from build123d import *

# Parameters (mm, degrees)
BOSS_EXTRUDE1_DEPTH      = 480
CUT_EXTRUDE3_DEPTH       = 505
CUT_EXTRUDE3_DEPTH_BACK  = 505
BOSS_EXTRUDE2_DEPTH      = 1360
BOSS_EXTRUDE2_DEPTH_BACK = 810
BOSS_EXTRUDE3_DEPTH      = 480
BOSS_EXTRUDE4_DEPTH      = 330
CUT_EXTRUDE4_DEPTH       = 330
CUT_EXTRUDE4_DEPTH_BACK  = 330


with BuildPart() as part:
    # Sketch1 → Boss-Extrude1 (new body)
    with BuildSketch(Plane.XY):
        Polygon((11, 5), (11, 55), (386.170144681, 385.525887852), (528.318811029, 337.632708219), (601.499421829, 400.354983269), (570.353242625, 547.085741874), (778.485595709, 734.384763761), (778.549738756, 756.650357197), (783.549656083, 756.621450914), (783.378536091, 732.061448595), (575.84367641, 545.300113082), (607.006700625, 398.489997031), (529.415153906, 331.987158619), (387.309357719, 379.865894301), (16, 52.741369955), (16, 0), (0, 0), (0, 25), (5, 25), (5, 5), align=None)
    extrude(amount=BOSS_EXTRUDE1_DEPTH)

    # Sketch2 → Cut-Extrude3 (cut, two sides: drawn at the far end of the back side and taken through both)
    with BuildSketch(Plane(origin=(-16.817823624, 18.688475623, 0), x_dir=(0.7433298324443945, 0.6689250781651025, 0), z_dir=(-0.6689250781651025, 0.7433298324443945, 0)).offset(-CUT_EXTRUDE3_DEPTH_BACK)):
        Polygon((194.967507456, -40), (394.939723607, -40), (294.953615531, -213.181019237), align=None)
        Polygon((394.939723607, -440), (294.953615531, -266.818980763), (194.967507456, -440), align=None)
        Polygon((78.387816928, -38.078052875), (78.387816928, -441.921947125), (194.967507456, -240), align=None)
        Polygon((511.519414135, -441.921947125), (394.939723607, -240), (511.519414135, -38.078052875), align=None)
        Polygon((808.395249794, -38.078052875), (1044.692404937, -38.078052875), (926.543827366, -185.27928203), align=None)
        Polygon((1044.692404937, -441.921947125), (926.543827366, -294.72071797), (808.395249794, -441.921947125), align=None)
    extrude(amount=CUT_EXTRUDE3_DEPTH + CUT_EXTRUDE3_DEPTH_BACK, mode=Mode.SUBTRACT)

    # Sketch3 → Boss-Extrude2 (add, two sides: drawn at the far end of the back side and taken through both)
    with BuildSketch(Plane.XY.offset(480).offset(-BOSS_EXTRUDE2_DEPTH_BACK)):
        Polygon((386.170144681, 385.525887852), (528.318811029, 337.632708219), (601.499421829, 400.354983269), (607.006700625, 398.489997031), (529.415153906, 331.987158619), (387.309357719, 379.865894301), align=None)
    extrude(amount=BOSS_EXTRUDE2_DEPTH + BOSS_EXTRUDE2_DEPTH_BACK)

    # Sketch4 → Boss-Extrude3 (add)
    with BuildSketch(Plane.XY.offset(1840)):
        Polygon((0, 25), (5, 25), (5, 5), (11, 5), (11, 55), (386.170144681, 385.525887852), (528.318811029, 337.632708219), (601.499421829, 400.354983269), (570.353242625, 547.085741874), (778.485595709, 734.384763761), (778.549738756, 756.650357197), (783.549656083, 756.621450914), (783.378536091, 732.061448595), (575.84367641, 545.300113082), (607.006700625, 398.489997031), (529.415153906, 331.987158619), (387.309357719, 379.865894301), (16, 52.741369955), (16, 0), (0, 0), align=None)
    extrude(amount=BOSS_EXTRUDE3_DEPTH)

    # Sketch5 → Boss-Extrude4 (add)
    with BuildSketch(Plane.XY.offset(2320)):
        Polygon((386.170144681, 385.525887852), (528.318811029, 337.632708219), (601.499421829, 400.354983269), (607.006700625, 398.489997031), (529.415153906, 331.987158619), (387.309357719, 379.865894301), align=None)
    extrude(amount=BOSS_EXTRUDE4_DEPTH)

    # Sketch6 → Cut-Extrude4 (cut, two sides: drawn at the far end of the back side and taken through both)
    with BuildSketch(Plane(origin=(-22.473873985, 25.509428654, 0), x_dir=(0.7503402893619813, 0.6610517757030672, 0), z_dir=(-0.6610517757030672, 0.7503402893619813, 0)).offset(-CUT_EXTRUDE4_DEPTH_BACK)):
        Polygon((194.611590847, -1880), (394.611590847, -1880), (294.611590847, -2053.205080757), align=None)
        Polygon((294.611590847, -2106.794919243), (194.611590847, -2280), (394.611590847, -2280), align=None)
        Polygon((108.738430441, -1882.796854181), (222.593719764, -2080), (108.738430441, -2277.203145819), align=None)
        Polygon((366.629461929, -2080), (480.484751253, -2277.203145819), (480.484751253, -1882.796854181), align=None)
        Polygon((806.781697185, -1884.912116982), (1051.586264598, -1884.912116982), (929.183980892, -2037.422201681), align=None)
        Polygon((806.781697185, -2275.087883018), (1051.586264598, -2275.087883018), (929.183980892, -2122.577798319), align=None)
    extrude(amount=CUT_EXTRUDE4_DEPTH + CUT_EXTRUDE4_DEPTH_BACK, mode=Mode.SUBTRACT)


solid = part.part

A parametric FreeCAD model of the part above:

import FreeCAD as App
import Part
import Sketcher
from FreeCAD import Vector
Q = App.Units.Quantity


def add_polygon(sketch, points):
    """Adds a closed chain of lines whose ends are joined by coincident constraints."""
    first, n = sketch.GeometryCount, len(points)
    for a, b in zip(points, points[1:] + points[:1]):
        sketch.addGeometry(Part.LineSegment(App.Vector(*a, 0), App.Vector(*b, 0)), False)
    for i in range(n):
        sketch.addConstraint(Sketcher.Constraint("Coincident", first + i, 2, first + (i + 1) % n, 1))

doc = App.newDocument("Part")
body = doc.addObject("PartDesign::Body", "Body")

# Sketch on XY plane
sketch1 = body.newObject("Sketcher::SketchObject", "Sketch")
sketch1.AttachmentSupport = (doc.getObject("XY_Plane"), [""])
sketch1.MapMode = "FlatFace"
add_polygon(sketch1, [(11, 55), (11, 5), (5, 5), (5, 25), (0, 25), (0, 0), (16, 0), (16, 52.74137), (387.309358, 379.865894), (529.415154, 331.987159), (607.006701, 398.489997), (575.843676, 545.300113), (783.378536, 732.061449), (783.549656, 756.621451), (778.549739, 756.650357), (778.485596, 734.384764), (570.353243, 547.085742), (601.499422, 400.354983), (528.318811, 337.632708), (386.170145, 385.525888)])  # lines 0-19
sketch1.addConstraint(Sketcher.Constraint("Vertical", 0))
sketch1.addConstraint(Sketcher.Constraint("Horizontal", 1))
sketch1.addConstraint(Sketcher.Constraint("Vertical", 2))
sketch1.addConstraint(Sketcher.Constraint("Horizontal", 3))
sketch1.addConstraint(Sketcher.Constraint("Vertical", 4))
sketch1.addConstraint(Sketcher.Constraint("Horizontal", 5))
sketch1.addConstraint(Sketcher.Constraint("Vertical", 6))
sketch1.addConstraint(Sketcher.Constraint("Coincident", 4, 2, -1, 1))
sketch1.addConstraint(Sketcher.Constraint("Parallel", 11, 15))
sketch1.addConstraint(Sketcher.Constraint("Parallel", 10, 16))
sketch1.addConstraint(Sketcher.Constraint("Parallel", 9, 17))
sketch1.addConstraint(Sketcher.Constraint("Parallel", 8, 18))
sketch1.addConstraint(Sketcher.Constraint("Parallel", 7, 19))
sketch1.addConstraint(Sketcher.Constraint("Equal", 16, 18))
sketch1.addConstraint(Sketcher.Constraint("DistanceX", 1, 2, 1, 1, Q("6 mm")))
sketch1.addConstraint(Sketcher.Constraint("DistanceX", 3, 2, 3, 1, Q("5 mm")))
sketch1.addConstraint(Sketcher.Constraint("DistanceX", 5, 1, 5, 2, Q("16 mm")))
sketch1.addConstraint(Sketcher.Constraint("DistanceY", 0, 2, 0, 1, Q("50 mm")))
sketch1.addConstraint(Sketcher.Constraint("DistanceY", 2, 1, 2, 2, Q("20 mm")))
sketch1.addConstraint(Sketcher.Constraint("DistanceY", 4, 2, 4, 1, Q("25 mm")))
sketch1.addConstraint(Sketcher.Constraint("Distance", 13, Q("5.000001 mm")))
sketch1.addConstraint(Sketcher.Constraint("Distance", 15, Q("280 mm")))
sketch1.addConstraint(Sketcher.Constraint("Distance", 16, Q("150 mm")))
sketch1.addConstraint(Sketcher.Constraint("Distance", 19, Q("500 mm")))
sketch1.addConstraint(Sketcher.Constraint("Distance", 12, Q("24.560598 mm")))
sketch1.addConstraint(Sketcher.Constraint("DistanceY", 6, 1, 6, 2, Q("52.74137 mm")))
sketch1.addConstraint(Sketcher.Constraint("DistanceX", -1, 1, 9, 2, Q("607.006701 mm")))
sketch1.addConstraint(Sketcher.Constraint("DistanceX", 7, 2, 12, 2, Q("396.240298 mm")))
sketch1.addConstraint(Sketcher.Constraint("DistanceY", 8, 2, 13, 2, Q("424.663199 mm")))
sketch1.addConstraint(Sketcher.Constraint("Distance", 7, Q("494.854619 mm")))
sketch1.addConstraint(Sketcher.Constraint("Distance", 8, Q("149.954762 mm")))
sketch1.addConstraint(Sketcher.Constraint("DistanceY", -1, 1, 8, 2, Q("331.987159 mm")))
sketch1.addConstraint(Sketcher.Constraint("DistanceY", -1, 1, 11, 2, Q("732.061449 mm")))
sketch1.addConstraint(Sketcher.Constraint("DistanceY", -1, 1, 12, 2, Q("756.621451 mm")))
sketch1.addConstraint(Sketcher.Constraint("DistanceX", -1, 1, 13, 2, Q("778.549739 mm")))
sketch1.addConstraint(Sketcher.Constraint("DistanceY", -1, 1, 15, 2, Q("547.085742 mm")))
sketch1.addConstraint(Sketcher.Constraint("DistanceX", -1, 1, 16, 2, Q("601.499422 mm")))
sketch1.addConstraint(Sketcher.Constraint("DistanceY", 8, 2, 9, 2, Q("66.502838 mm")))
sketch1.addConstraint(Sketcher.Constraint("DistanceX", 7, 2, 10, 2, Q("188.534319 mm")))
pad1 = body.newObject("PartDesign::Pad", "Pad")
pad1.Profile = sketch1
pad1.Length = 480

# Sketch on an angled plane
sketch2 = body.newObject("Sketcher::SketchObject", "Sketch001")
sketch2.Placement = App.Placement(Vector(-16.817824, 18.688475, 0), App.Rotation(Vector(0.743329832, 0.668925078, 0), Vector(0, 0, -0.999999999), Vector(-0.668925078, 0.743329832, 0), "ZXY"))
add_polygon(sketch2, [(394.939723, -40), (194.967507, -40), (294.953615, -213.181019)])  # lines 0-2
add_polygon(sketch2, [(394.939723, -439.999999), (294.953615, -266.81898), (194.967507, -439.999999)])  # lines 3-5
add_polygon(sketch2, [(78.387817, -38.078053), (78.387817, -441.921946), (194.967507, -240)])  # lines 6-8
add_polygon(sketch2, [(394.939723, -240), (511.519414, -441.921946), (511.519414, -38.078053)])  # lines 9-11
add_polygon(sketch2, [(1044.692404, -38.078053), (808.395249, -38.078053), (926.543827, -185.279282)])  # lines 12-14
add_polygon(sketch2, [(1044.692404, -441.921946), (926.543827, -294.720717), (808.395249, -441.921946)])  # lines 15-17
sketch2.addConstraint(Sketcher.Constraint("Horizontal", 0))
sketch2.addConstraint(Sketcher.Constraint("Horizontal", 5))
sketch2.addConstraint(Sketcher.Constraint("Vertical", 6))
sketch2.addConstraint(Sketcher.Constraint("Vertical", 10))
sketch2.addConstraint(Sketcher.Constraint("Horizontal", 12))
sketch2.addConstraint(Sketcher.Constraint("Horizontal", 17))
sketch2.addConstraint(Sketcher.Constraint("Parallel", 1, 3))
sketch2.addConstraint(Sketcher.Constraint("Parallel", 2, 4))
sketch2.addConstraint(Sketcher.Constraint("Parallel", 4, 7))
sketch2.addConstraint(Sketcher.Constraint("Parallel", 3, 8))
sketch2.addConstraint(Sketcher.Constraint("Parallel", 8, 9))
sketch2.addConstraint(Sketcher.Constraint("Parallel", 7, 11))
sketch2.addConstraint(Sketcher.Constraint("Parallel", 13, 15))
sketch2.addConstraint(Sketcher.Constraint("Parallel", 14, 16))
sketch2.addConstraint(Sketcher.Constraint("Horizontal", 6, 2, 9, 2))
sketch2.addConstraint(Sketcher.Constraint("Horizontal", 8, 2, 10, 2))
sketch2.addConstraint(Sketcher.Constraint("Horizontal", 7, 2, 11, 2))
sketch2.addConstraint(Sketcher.Constraint("Horizontal", 10, 2, 12, 2))
sketch2.addConstraint(Sketcher.Constraint("Horizontal", 9, 2, 16, 2))
sketch2.addConstraint(Sketcher.Constraint("Vertical", 1, 2, 3, 2))
sketch2.addConstraint(Sketcher.Constraint("Vertical", 0, 2, 4, 2))
sketch2.addConstraint(Sketcher.Constraint("Vertical", 4, 2, 7, 2))
sketch2.addConstraint(Sketcher.Constraint("Vertical", 5, 2, 11, 2))
sketch2.addConstraint(Sketcher.Constraint("Vertical", 13, 2, 15, 2))
sketch2.addConstraint(Sketcher.Constraint("Vertical", 12, 2, 16, 2))
sketch2.addConstraint(Sketcher.Constraint("Vertical", 14, 2, 17, 2))
sketch2.addConstraint(Sketcher.Constraint("Angle", 1, Q("-60 deg")))
sketch2.addConstraint(Sketcher.Constraint("DistanceY", 0, 2, -1, 1, Q("40 mm")))
sketch2.addConstraint(Sketcher.Constraint("DistanceY", 4, 2, -1, 1, Q("439.999999 mm")))
sketch2.addConstraint(Sketcher.Constraint("DistanceY", 7, 2, -1, 1, Q("240 mm")))
sketch2.addConstraint(Sketcher.Constraint("DistanceX", 6, 2, 3, 2, Q("216.565798 mm")))
sketch2.addConstraint(Sketcher.Constraint("Distance", 7, Q("233.159381 mm")))
sketch2.addConstraint(Sketcher.Constraint("DistanceX", 12, 2, 12, 1, Q("236.297155 mm")))
sketch2.addConstraint(Sketcher.Constraint("DistanceX", -1, 1, 12, 2, Q("808.395249 mm")))
sketch2.addConstraint(Sketcher.Constraint("DistanceY", 13, 2, -1, 1, Q("185.279282 mm")))
sketch2.addConstraint(Sketcher.Constraint("DistanceX", 10, 2, 14, 2, Q("533.17299 mm")))
pocket1 = body.newObject("PartDesign::Pocket", "Pocket")
pocket1.Profile = sketch2
pocket1.Type = "ThroughAll"
pocket1.Midplane = True

# Sketch on XY plane
sketch3 = body.newObject("Sketcher::SketchObject", "Sketch002")
sketch3.AttachmentSupport = (doc.getObject("XY_Plane"), [""])
sketch3.MapMode = "FlatFace"
sketch3.AttachmentOffset = App.Placement(Vector(0, 0, 480), App.Rotation())
add_polygon(sketch3, [(528.318811, 337.632708), (386.170145, 385.525888), (387.309358, 379.865894), (529.415154, 331.987159), (607.006701, 398.489997), (601.499422, 400.354983)])  # lines 0-5
sketch3.addConstraint(Sketcher.Constraint("Parallel", 0, 2))
sketch3.addConstraint(Sketcher.Constraint("Parallel", 3, 5))
sketch3.addConstraint(Sketcher.Constraint("Distance", 0, Q("150 mm")))
sketch3.addConstraint(Sketcher.Constraint("DistanceX", -1, 1, 3, 2, Q("607.006701 mm")))
sketch3.addConstraint(Sketcher.Constraint("Distance", 2, Q("149.954762 mm")))
sketch3.addConstraint(Sketcher.Constraint("Distance", 4, Q("5.81449 mm")))
sketch3.addConstraint(Sketcher.Constraint("DistanceY", -1, 1, 2, 2, Q("331.987159 mm")))
sketch3.addConstraint(Sketcher.Constraint("DistanceX", -1, 1, 4, 2, Q("601.499422 mm")))
sketch3.addConstraint(Sketcher.Constraint("DistanceX", -1, 1, 5, 2, Q("528.318811 mm")))
sketch3.addConstraint(Sketcher.Constraint("DistanceY", -1, 1, 5, 2, Q("337.632708 mm")))
sketch3.addConstraint(Sketcher.Constraint("DistanceX", 0, 2, 2, 2, Q("143.245009 mm")))
sketch3.addConstraint(Sketcher.Constraint("DistanceY", 2, 2, 0, 2, Q("53.538729 mm")))
pad2 = body.newObject("PartDesign::Pad", "Pad001")
pad2.Profile = sketch3
pad2.Type = "TwoLengths"
pad2.Length = 1360
pad2.Length2 = 810

# Sketch on XY plane
sketch4 = body.newObject("Sketcher::SketchObject", "Sketch003")
sketch4.AttachmentSupport = (doc.getObject("XY_Plane"), [""])
sketch4.MapMode = "FlatFace"
sketch4.AttachmentOffset = App.Placement(Vector(0, 0, 1840), App.Rotation())
add_polygon(sketch4, [(5, 25), (0, 25), (0, 0), (16, 0), (16, 52.74137), (387.309358, 379.865894), (529.415154, 331.987159), (607.006701, 398.489997), (575.843676, 545.300113), (783.378536, 732.061449), (783.549656, 756.621451), (778.549739, 756.650357), (778.485596, 734.384764), (570.353243, 547.085742), (601.499422, 400.354983), (528.318811, 337.632708), (386.170145, 385.525888), (11, 55), (11, 5), (5, 5)])  # lines 0-19
sketch4.addConstraint(Sketcher.Constraint("Horizontal", 0))
sketch4.addConstraint(Sketcher.Constraint("Vertical", 1))
sketch4.addConstraint(Sketcher.Constraint("Horizontal", 2))
sketch4.addConstraint(Sketcher.Constraint("Vertical", 3))
sketch4.addConstraint(Sketcher.Constraint("Vertical", 17))
sketch4.addConstraint(Sketcher.Constraint("Horizontal", 18))
sketch4.addConstraint(Sketcher.Constraint("Vertical", 19))
sketch4.addConstraint(Sketcher.Constraint("Coincident", 1, 2, -1, 1))
sketch4.addConstraint(Sketcher.Constraint("Parallel", 8, 12))
sketch4.addConstraint(Sketcher.Constraint("Parallel", 7, 13))
sketch4.addConstraint(Sketcher.Constraint("Parallel", 6, 14))
sketch4.addConstraint(Sketcher.Constraint("Parallel", 5, 15))
sketch4.addConstraint(Sketcher.Constraint("Parallel", 4, 16))
sketch4.addConstraint(Sketcher.Constraint("Equal", 13, 15))
sketch4.addConstraint(Sketcher.Constraint("DistanceX", 0, 2, 0, 1, Q("5 mm")))
sketch4.addConstraint(Sketcher.Constraint("DistanceX", 2, 1, 2, 2, Q("16 mm")))
sketch4.addConstraint(Sketcher.Constraint("DistanceX", 18, 2, 18, 1, Q("6 mm")))
sketch4.addConstraint(Sketcher.Constraint("DistanceY", 1, 2, 1, 1, Q("25 mm")))
sketch4.addConstraint(Sketcher.Constraint("DistanceY", 17, 2, 17, 1, Q("50 mm")))
sketch4.addConstraint(Sketcher.Constraint("DistanceY", 19, 1, 19, 2, Q("20 mm")))
sketch4.addConstraint(Sketcher.Constraint("Distance", 10, Q("5.000001 mm")))
sketch4.addConstraint(Sketcher.Constraint("Distance", 12, Q("280 mm")))
sketch4.addConstraint(Sketcher.Constraint("Distance", 13, Q("150 mm")))
sketch4.addConstraint(Sketcher.Constraint("Distance", 16, Q("500 mm")))
sketch4.addConstraint(Sketcher.Constraint("Distance", 9, Q("24.560598 mm")))
sketch4.addConstraint(Sketcher.Constraint("DistanceY", 3, 1, 3, 2, Q("52.74137 mm")))
sketch4.addConstraint(Sketcher.Constraint("DistanceX", -1, 1, 6, 2, Q("607.006701 mm")))
sketch4.addConstraint(Sketcher.Constraint("DistanceX", 4, 2, 9, 2, Q("396.240298 mm")))
sketch4.addConstraint(Sketcher.Constraint("DistanceY", 5, 2, 10, 2, Q("424.663199 mm")))
sketch4.addConstraint(Sketcher.Constraint("Distance", 4, Q("494.854619 mm")))
sketch4.addConstraint(Sketcher.Constraint("Distance", 5, Q("149.954762 mm")))
sketch4.addConstraint(Sketcher.Constraint("DistanceY", -1, 1, 5, 2, Q("331.987159 mm")))
sketch4.addConstraint(Sketcher.Constraint("DistanceY", -1, 1, 8, 2, Q("732.061449 mm")))
sketch4.addConstraint(Sketcher.Constraint("DistanceY", -1, 1, 9, 2, Q("756.621451 mm")))
sketch4.addConstraint(Sketcher.Constraint("DistanceX", -1, 1, 10, 2, Q("778.549739 mm")))
sketch4.addConstraint(Sketcher.Constraint("DistanceY", -1, 1, 12, 2, Q("547.085742 mm")))
sketch4.addConstraint(Sketcher.Constraint("DistanceX", -1, 1, 13, 2, Q("601.499422 mm")))
sketch4.addConstraint(Sketcher.Constraint("DistanceY", 5, 2, 6, 2, Q("66.502838 mm")))
sketch4.addConstraint(Sketcher.Constraint("DistanceX", 4, 2, 7, 2, Q("188.534319 mm")))
pad3 = body.newObject("PartDesign::Pad", "Pad002")
pad3.Profile = sketch4
pad3.Length = 480

# Sketch on XY plane
sketch5 = body.newObject("Sketcher::SketchObject", "Sketch004")
sketch5.AttachmentSupport = (doc.getObject("XY_Plane"), [""])
sketch5.MapMode = "FlatFace"
sketch5.AttachmentOffset = App.Placement(Vector(0, 0, 2320), App.Rotation())
add_polygon(sketch5, [(528.318811, 337.632708), (386.170145, 385.525888), (387.309358, 379.865894), (529.415154, 331.987159), (607.006701, 398.489997), (601.499422, 400.354983)])  # lines 0-5
sketch5.addConstraint(Sketcher.Constraint("Parallel", 0, 2))
sketch5.addConstraint(Sketcher.Constraint("Parallel", 3, 5))
sketch5.addConstraint(Sketcher.Constraint("Distance", 0, Q("150 mm")))
sketch5.addConstraint(Sketcher.Constraint("DistanceX", -1, 1, 3, 2, Q("607.006701 mm")))
sketch5.addConstraint(Sketcher.Constraint("Distance", 2, Q("149.954762 mm")))
sketch5.addConstraint(Sketcher.Constraint("Distance", 4, Q("5.81449 mm")))
sketch5.addConstraint(Sketcher.Constraint("DistanceY", -1, 1, 2, 2, Q("331.987159 mm")))
sketch5.addConstraint(Sketcher.Constraint("DistanceX", -1, 1, 4, 2, Q("601.499422 mm")))
sketch5.addConstraint(Sketcher.Constraint("DistanceX", -1, 1, 5, 2, Q("528.318811 mm")))
sketch5.addConstraint(Sketcher.Constraint("DistanceY", -1, 1, 5, 2, Q("337.632708 mm")))
sketch5.addConstraint(Sketcher.Constraint("DistanceX", 0, 2, 2, 2, Q("143.245009 mm")))
sketch5.addConstraint(Sketcher.Constraint("DistanceY", 2, 2, 0, 2, Q("53.538729 mm")))
pad4 = body.newObject("PartDesign::Pad", "Pad003")
pad4.Profile = sketch5
pad4.Length = 330

# Sketch on an angled plane
sketch6 = body.newObject("Sketcher::SketchObject", "Sketch005")
sketch6.Placement = App.Placement(Vector(-22.473874, 25.509429, 0), App.Rotation(Vector(0.750340289, 0.661051776, 0), Vector(0, 0, -1), Vector(-0.661051776, 0.750340289, 0), "ZXY"))
add_polygon(sketch6, [(394.611591, -1879.999999), (194.611591, -1879.999999), (294.611591, -2053.20508)])  # lines 0-2
add_polygon(sketch6, [(294.611591, -2106.794919), (194.611591, -2279.999999), (394.611591, -2279.999999)])  # lines 3-5
add_polygon(sketch6, [(222.59372, -2079.999999), (108.73843, -1882.796854), (108.73843, -2277.203145)])  # lines 6-8
add_polygon(sketch6, [(366.629462, -2079.999999), (480.484751, -2277.203145), (480.484751, -1882.796854)])  # lines 9-11
add_polygon(sketch6, [(1051.586264, -1884.912116), (806.781697, -1884.912116), (929.183981, -2037.422201)])  # lines 12-14
add_polygon(sketch6, [(806.781697, -2275.087882), (1051.586264, -2275.087882), (929.183981, -2122.577798)])  # lines 15-17
sketch6.addConstraint(Sketcher.Constraint("Horizontal", 0))
sketch6.addConstraint(Sketcher.Constraint("Horizontal", 4))
sketch6.addConstraint(Sketcher.Constraint("Vertical", 7))
sketch6.addConstraint(Sketcher.Constraint("Vertical", 10))
sketch6.addConstraint(Sketcher.Constraint("Horizontal", 12))
sketch6.addConstraint(Sketcher.Constraint("Horizontal", 15))
sketch6.addConstraint(Sketcher.Constraint("Parallel", 2, 3))
sketch6.addConstraint(Sketcher.Constraint("Parallel", 1, 5))
sketch6.addConstraint(Sketcher.Constraint("Parallel", 5, 6))
sketch6.addConstraint(Sketcher.Constraint("Parallel", 3, 8))
sketch6.addConstraint(Sketcher.Constraint("Parallel", 6, 9))
sketch6.addConstraint(Sketcher.Constraint("Parallel", 8, 11))
sketch6.addConstraint(Sketcher.Constraint("Parallel", 13, 16))
sketch6.addConstraint(Sketcher.Constraint("Parallel", 14, 17))
sketch6.addConstraint(Sketcher.Constraint("Horizontal", 7, 2, 9, 2))
sketch6.addConstraint(Sketcher.Constraint("Horizontal", 6, 2, 10, 2))
sketch6.addConstraint(Sketcher.Constraint("Horizontal", 8, 2, 11, 2))
sketch6.addConstraint(Sketcher.Constraint("Vertical", 0, 2, 3, 2))
sketch6.addConstraint(Sketcher.Constraint("Vertical", 2, 2, 4, 2))
sketch6.addConstraint(Sketcher.Constraint("Vertical", 14, 2, 15, 2))
sketch6.addConstraint(Sketcher.Constraint("Vertical", 13, 2, 16, 2))
sketch6.addConstraint(Sketcher.Constraint("Vertical", 12, 2, 17, 2))
sketch6.addConstraint(Sketcher.Constraint("DistanceX", 0, 2, 0, 1, Q("200 mm")))
sketch6.addConstraint(Sketcher.Constraint("Angle", 1, Q("-60 deg")))
sketch6.addConstraint(Sketcher.Constraint("DistanceY", 0, 2, -1, 1, Q("1879.999999 mm")))
sketch6.addConstraint(Sketcher.Constraint("DistanceY", 3, 2, -1, 1, Q("2279.999999 mm")))
sketch6.addConstraint(Sketcher.Constraint("DistanceY", 8, 2, -1, 1, Q("2079.999999 mm")))
sketch6.addConstraint(Sketcher.Constraint("Angle", 13, Q("-51.25 deg")))
sketch6.addConstraint(Sketcher.Constraint("DistanceY", 7, 2, 7, 1, Q("394.406292 mm")))
sketch6.addConstraint(Sketcher.Constraint("DistanceY", 13, 2, -1, 1, Q("2037.422201 mm")))
sketch6.addConstraint(Sketcher.Constraint("Distance", 13, Q("195.554711 mm")))
sketch6.addConstraint(Sketcher.Constraint("DistanceX", -1, 1, 0, 2, Q("194.611591 mm")))
sketch6.addConstraint(Sketcher.Constraint("DistanceX", -1, 1, 6, 2, Q("108.73843 mm")))
sketch6.addConstraint(Sketcher.Constraint("DistanceX", -1, 1, 9, 2, Q("480.484751 mm")))
sketch6.addConstraint(Sketcher.Constraint("DistanceX", -1, 1, 13, 2, Q("929.183981 mm")))
sketch6.addConstraint(Sketcher.Constraint("DistanceY", 15, 2, 13, 2, Q("237.665681 mm")))
pocket2 = body.newObject("PartDesign::Pocket", "Pocket001")
pocket2.Profile = sketch6
pocket2.Type = "ThroughAll"
pocket2.Midplane = True

doc.recompute()
